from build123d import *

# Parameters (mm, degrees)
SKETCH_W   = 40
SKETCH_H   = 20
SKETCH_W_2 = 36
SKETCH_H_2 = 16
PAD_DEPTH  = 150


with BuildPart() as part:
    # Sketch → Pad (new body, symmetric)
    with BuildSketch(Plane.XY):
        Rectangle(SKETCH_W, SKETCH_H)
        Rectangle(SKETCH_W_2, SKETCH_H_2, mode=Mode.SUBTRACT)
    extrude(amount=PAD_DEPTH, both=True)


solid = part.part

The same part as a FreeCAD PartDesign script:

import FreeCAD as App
import Part
import Sketcher

V = App.Vector

doc = App.newDocument("Part")
body = doc.addObject("PartDesign::Body", "Body")

sketch1 = body.newObject("Sketcher::SketchObject", "Sketch")
sketch1.AttachmentSupport = (doc.getObject("XY_Plane"), [""])
sketch1.MapMode = "FlatFace"
sketch1.addGeometry([
    Part.LineSegment(V(-20, 10, 0), V(-20, -10, 0)),
    Part.LineSegment(V(-20, -10, 0), V(20, -10, 0)),
    Part.LineSegment(V(20, -10, 0), V(20, 10, 0)),
    Part.LineSegment(V(20, 10, 0), V(-20, 10, 0)),
    Part.LineSegment(V(18, -8, 0), V(-18, -8, 0)),
    Part.LineSegment(V(-18, -8, 0), V(-18, 8, 0)),
    Part.LineSegment(V(-18, 8, 0), V(18, 8, 0)),
    Part.LineSegment(V(18, 8, 0), V(18, -8, 0)),
], False)
sketch1.addConstraint([
    Sketcher.Constraint("Coincident", 0, 2, 1, 1),
    Sketcher.Constraint("Coincident", 1, 2, 2, 1),
    Sketcher.Constraint("Coincident", 2, 2, 3, 1),
    Sketcher.Constraint("Coincident", 3, 2, 0, 1),
    Sketcher.Constraint("Coincident", 4, 2, 5, 1),
    Sketcher.Constraint("Coincident", 5, 2, 6, 1),
    Sketcher.Constraint("Coincident", 6, 2, 7, 1),
    Sketcher.Constraint("Coincident", 7, 2, 4, 1),
    Sketcher.Constraint("Vertical", 0),
    Sketcher.Constraint("Horizontal", 1),
    Sketcher.Constraint("Vertical", 2),
    Sketcher.Constraint("Horizontal", 3),
    Sketcher.Constraint("Horizontal", 4),
    Sketcher.Constraint("Vertical", 5),
    Sketcher.Constraint("Horizontal", 6),
    Sketcher.Constraint("Vertical", 7),
    Sketcher.Constraint("Symmetric", 0, 2, 2, 2, -1, 1),
    Sketcher.Constraint("Symmetric", 4, 2, 6, 2, -1, 1),
    Sketcher.Constraint("DistanceX", 1, 1, 1, 2, 40.0),
    Sketcher.Constraint("DistanceX", 4, 2, 4, 1, 36.0),
    Sketcher.Constraint("DistanceY", 0, 2, 0, 1, 20.0),
    Sketcher.Constraint("DistanceY", 5, 1, 5, 2, 16.0),
])
pad1 = body.newObject("PartDesign::Pad", "Pad")
pad1.Profile = sketch1
pad1.Length = 300
pad1.Midplane = True

doc.recompute()
